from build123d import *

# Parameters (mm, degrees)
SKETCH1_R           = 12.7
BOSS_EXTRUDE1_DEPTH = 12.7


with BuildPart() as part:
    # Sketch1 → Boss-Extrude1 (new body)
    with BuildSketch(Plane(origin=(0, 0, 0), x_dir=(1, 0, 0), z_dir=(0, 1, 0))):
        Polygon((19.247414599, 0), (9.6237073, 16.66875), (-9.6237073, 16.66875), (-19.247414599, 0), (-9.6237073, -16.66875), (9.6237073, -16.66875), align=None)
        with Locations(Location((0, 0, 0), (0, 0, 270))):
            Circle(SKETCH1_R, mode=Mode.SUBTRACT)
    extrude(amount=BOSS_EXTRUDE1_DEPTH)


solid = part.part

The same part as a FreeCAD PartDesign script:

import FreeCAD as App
import Part
import Sketcher
from FreeCAD import Vector
Q = App.Units.Quantity


def add_polygon(sketch, points):
    """Adds a closed chain of lines whose ends are joined by coincident constraints."""
    first, n = sketch.GeometryCount, len(points)
    for a, b in zip(points, points[1:] + points[:1]):
        sketch.addGeometry(Part.LineSegment(App.Vector(*a, 0), App.Vector(*b, 0)), False)
    for i in range(n):
        sketch.addConstraint(Sketcher.Constraint("Coincident", first + i, 2, first + (i + 1) % n, 1))

doc = App.newDocument("Part")
body = doc.addObject("PartDesign::Body", "Body")

# Sketch on XZ plane
sketch1 = body.newObject("Sketcher::SketchObject", "Sketch")
sketch1.AttachmentSupport = (doc.getObject("XZ_Plane"), [""])
sketch1.MapMode = "FlatFace"
add_polygon(sketch1, [(19.247415, 0), (9.623707, -16.66875), (-9.623707, -16.66875), (-19.247415, 0), (-9.623707, 16.66875), (9.623707, 16.66875)])  # lines 0-5
sketch1.addGeometry(Part.Circle(Vector(0, 0, 0), Vector(0, 0, 1), 12.7), False)  # 6
sketch1.addConstraint([
    Sketcher.Constraint("Horizontal", 1),
    Sketcher.Constraint("Horizontal", 4),
    Sketcher.Constraint("Coincident", 6, 3, -1, 1),
    Sketcher.Constraint("Symmetric", 0, 2, 3, 2, -1, 1),
    Sketcher.Constraint("Symmetric", 2, 2, 5, 2, -1, 1),
    Sketcher.Constraint("PointOnObject", 2, 2, -1),
    Sketcher.Constraint("Parallel", 2, 5),
    Sketcher.Constraint("Vertical", 1, 2, 3, 2),
    Sketcher.Constraint("Diameter", 6, Q("1 in")),
    Sketcher.Constraint("Angle", 0, Q("-120 deg")),
    Sketcher.Constraint("DistanceY", 0, 2, -1, 1, Q("0.65625 in")),
    Sketcher.Constraint("DistanceX", 1, 2, 1, 1, Q("19.247415 mm")),
])
pad1 = body.newObject("PartDesign::Pad", "Pad")
pad1.Profile = sketch1
pad1.Length = Q("0.5 in")
pad1.Reversed = True

doc.recompute()
